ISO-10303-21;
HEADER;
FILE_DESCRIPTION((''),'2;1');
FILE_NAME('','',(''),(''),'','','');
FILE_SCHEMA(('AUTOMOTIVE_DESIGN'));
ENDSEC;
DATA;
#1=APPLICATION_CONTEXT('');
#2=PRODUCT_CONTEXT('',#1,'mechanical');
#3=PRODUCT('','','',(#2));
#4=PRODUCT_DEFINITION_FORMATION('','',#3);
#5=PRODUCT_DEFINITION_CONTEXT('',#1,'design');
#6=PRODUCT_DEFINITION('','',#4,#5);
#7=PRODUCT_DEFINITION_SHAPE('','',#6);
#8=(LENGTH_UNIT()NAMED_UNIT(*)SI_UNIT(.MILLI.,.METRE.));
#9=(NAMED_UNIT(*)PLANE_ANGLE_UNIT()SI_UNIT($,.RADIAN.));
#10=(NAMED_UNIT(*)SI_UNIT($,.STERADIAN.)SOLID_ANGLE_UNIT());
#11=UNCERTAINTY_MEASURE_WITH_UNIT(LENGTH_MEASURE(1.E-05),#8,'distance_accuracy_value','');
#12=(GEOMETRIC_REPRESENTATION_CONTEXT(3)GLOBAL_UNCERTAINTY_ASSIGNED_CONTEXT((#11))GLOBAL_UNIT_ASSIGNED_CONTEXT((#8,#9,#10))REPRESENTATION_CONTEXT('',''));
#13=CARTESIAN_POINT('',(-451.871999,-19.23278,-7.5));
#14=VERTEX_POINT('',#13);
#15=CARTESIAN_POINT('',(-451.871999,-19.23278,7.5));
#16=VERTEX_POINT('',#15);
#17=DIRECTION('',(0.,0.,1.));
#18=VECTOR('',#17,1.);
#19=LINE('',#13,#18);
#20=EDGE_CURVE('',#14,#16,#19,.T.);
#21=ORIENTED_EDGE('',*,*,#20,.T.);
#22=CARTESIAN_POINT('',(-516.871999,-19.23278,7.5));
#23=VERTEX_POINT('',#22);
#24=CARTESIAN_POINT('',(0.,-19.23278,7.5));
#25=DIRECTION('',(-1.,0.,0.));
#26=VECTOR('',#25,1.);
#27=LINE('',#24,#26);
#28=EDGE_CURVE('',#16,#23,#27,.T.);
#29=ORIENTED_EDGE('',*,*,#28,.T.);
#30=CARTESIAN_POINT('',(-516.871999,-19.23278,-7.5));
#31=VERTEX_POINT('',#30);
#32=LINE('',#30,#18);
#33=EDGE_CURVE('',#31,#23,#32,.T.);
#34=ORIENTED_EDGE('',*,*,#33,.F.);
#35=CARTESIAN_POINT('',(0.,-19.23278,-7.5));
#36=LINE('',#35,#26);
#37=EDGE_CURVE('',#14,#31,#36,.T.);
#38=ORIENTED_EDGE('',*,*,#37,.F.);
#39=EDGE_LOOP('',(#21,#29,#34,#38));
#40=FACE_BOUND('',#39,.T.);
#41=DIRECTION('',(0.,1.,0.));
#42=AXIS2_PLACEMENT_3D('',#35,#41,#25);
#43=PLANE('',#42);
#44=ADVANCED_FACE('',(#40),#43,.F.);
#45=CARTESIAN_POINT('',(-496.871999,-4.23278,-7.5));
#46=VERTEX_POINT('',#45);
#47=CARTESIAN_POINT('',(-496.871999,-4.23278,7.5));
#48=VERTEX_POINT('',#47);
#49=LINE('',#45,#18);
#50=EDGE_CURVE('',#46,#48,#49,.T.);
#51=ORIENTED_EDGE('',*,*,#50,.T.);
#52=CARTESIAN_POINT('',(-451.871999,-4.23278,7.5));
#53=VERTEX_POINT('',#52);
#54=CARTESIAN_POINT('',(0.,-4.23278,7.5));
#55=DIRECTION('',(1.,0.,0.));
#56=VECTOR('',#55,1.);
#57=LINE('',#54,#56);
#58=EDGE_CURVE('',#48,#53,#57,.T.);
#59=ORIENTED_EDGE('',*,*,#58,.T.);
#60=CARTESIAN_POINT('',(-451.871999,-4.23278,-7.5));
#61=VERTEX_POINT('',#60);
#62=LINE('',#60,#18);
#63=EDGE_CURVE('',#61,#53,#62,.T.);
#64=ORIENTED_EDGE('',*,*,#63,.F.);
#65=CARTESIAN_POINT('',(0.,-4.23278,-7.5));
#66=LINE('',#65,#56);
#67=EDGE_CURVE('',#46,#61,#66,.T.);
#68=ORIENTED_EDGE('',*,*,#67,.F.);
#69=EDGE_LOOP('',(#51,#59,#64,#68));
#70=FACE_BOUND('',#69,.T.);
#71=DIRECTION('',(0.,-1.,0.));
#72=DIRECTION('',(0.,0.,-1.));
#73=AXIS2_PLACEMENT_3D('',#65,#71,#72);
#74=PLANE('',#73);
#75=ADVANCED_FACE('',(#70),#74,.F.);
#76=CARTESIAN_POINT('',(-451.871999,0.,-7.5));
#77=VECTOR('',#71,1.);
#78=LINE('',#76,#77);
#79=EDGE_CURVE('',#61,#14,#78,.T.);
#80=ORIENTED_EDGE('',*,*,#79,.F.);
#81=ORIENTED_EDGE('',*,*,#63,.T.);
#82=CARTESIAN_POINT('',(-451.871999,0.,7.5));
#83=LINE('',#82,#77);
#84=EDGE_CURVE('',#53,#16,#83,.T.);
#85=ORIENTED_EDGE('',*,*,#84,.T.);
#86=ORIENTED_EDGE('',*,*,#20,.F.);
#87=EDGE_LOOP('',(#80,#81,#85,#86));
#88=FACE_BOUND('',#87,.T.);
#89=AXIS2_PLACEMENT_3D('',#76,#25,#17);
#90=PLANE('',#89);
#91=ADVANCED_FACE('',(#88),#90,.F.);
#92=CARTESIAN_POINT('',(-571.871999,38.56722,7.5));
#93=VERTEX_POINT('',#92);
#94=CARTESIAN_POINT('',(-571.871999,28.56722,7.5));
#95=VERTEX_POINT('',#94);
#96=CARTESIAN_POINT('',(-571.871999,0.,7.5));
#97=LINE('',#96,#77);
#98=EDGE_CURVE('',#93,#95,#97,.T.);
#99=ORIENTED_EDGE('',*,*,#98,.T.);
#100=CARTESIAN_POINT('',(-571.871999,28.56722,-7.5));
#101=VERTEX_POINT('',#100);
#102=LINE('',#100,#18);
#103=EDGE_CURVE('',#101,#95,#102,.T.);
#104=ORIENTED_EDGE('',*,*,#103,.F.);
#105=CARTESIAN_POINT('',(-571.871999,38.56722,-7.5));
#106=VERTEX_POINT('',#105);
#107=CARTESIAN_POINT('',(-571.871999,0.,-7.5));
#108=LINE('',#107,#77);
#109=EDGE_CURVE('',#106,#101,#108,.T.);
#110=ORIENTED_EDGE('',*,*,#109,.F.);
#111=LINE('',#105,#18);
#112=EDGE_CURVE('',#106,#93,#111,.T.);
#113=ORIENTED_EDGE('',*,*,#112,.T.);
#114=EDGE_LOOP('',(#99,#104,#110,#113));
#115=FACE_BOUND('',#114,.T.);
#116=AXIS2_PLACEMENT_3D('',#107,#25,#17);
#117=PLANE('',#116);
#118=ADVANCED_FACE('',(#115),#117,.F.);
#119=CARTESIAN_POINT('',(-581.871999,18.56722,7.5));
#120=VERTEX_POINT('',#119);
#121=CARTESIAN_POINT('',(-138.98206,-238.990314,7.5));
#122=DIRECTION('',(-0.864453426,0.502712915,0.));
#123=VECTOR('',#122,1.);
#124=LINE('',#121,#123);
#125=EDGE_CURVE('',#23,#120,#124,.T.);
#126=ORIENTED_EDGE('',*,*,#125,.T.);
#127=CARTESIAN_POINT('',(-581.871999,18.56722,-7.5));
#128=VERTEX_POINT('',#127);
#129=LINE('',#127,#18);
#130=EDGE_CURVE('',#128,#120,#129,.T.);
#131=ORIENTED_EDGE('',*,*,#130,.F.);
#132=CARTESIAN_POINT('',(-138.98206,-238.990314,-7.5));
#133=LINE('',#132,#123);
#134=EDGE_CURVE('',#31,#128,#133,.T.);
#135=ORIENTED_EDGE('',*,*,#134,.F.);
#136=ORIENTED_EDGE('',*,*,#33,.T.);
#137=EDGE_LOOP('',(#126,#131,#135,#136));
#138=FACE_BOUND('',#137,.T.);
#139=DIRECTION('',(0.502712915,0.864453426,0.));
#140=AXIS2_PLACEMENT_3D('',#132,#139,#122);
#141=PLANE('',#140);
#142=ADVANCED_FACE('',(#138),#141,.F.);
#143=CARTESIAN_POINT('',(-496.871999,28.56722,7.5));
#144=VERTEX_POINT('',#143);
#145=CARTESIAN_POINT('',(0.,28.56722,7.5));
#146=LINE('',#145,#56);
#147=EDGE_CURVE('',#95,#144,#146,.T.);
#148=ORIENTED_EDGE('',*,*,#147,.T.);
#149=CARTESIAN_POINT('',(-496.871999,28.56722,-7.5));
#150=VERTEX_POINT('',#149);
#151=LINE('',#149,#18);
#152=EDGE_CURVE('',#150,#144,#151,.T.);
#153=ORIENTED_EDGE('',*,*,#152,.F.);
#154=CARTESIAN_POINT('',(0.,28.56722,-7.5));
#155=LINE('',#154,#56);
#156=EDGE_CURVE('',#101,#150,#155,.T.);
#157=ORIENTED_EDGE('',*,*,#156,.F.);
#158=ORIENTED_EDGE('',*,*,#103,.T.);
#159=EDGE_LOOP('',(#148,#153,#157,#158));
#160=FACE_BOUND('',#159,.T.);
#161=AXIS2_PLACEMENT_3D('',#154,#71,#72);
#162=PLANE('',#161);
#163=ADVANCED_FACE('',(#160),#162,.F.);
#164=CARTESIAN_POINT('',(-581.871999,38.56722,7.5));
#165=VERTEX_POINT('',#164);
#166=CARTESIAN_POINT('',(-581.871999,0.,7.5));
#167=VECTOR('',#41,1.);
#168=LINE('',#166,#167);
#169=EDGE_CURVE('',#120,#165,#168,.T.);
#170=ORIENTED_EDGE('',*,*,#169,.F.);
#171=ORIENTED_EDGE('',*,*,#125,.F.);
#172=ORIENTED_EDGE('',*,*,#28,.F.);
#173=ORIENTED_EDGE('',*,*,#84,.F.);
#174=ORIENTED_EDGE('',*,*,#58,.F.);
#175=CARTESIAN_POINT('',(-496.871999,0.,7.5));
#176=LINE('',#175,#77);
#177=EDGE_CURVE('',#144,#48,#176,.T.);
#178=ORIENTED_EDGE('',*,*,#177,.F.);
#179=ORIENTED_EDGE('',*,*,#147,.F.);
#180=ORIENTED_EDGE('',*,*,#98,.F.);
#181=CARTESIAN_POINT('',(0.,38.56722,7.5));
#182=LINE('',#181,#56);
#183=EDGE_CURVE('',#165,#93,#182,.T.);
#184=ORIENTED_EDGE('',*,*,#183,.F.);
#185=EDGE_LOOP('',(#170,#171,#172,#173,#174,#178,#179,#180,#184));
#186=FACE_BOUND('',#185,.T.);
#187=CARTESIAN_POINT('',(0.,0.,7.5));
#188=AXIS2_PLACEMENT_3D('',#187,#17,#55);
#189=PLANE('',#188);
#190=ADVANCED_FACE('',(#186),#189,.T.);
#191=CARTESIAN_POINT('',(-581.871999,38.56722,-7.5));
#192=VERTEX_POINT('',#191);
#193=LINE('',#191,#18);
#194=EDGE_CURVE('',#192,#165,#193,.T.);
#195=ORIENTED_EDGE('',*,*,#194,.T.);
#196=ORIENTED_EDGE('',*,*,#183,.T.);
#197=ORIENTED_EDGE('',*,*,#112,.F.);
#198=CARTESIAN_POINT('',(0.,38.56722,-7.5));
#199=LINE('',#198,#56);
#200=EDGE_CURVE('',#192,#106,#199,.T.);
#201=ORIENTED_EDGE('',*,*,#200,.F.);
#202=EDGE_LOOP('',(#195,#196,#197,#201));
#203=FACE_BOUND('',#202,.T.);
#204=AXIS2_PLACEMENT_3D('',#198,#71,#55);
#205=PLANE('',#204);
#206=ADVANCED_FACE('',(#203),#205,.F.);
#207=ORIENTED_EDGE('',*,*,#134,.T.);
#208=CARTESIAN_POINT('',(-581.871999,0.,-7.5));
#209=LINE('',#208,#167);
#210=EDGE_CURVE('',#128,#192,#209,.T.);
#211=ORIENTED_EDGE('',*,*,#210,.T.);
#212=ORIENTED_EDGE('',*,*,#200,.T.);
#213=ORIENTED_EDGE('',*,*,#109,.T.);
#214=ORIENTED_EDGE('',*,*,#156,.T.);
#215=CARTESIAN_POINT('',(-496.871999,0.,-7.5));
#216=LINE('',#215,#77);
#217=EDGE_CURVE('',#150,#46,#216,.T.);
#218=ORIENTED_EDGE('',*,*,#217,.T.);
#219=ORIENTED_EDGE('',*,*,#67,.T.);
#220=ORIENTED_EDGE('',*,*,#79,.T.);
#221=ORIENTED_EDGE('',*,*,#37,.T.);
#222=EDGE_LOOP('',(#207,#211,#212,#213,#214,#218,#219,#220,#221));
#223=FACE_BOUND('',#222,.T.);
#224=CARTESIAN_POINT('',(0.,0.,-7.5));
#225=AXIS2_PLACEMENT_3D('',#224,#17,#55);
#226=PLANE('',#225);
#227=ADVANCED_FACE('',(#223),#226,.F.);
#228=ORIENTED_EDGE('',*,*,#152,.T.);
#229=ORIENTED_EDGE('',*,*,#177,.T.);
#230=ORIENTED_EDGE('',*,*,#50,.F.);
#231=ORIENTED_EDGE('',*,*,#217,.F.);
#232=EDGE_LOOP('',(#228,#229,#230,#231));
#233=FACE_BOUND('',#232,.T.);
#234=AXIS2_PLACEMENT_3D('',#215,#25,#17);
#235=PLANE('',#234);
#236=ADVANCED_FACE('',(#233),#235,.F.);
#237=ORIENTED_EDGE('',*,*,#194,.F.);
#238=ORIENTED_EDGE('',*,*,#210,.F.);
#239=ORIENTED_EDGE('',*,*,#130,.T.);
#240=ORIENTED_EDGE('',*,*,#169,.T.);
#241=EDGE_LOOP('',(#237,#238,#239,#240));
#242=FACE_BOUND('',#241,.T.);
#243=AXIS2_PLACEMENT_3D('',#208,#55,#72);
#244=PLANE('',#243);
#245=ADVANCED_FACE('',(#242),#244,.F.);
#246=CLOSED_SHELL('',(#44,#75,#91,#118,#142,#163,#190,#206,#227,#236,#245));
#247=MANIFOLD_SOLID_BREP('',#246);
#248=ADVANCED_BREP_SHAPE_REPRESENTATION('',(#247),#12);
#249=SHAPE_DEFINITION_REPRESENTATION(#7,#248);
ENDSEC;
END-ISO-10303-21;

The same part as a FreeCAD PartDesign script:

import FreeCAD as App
import Part
import Sketcher

V = App.Vector
Q = App.Units.Quantity

doc = App.newDocument("Part")
body = doc.addObject("PartDesign::Body", "Body")

# Sketch on XY plane
sketch1 = body.newObject("Sketcher::SketchObject", "Sketch")
sketch1.AttachmentSupport = (doc.getObject("XY_Plane"), [""])
sketch1.MapMode = "FlatFace"
sketch1.addGeometry(Part.LineSegment(V(-452, -19, 0), V(-452, -4, 0)), False)
sketch1.addGeometry(Part.LineSegment(V(-452, -4, 0), V(-497, -4, 0)), False)
sketch1.addGeometry(Part.LineSegment(V(-497, -4, 0), V(-497, 29, 0)), False)
sketch1.addGeometry(Part.LineSegment(V(-497, 29, 0), V(-572, 29, 0)), False)
sketch1.addGeometry(Part.LineSegment(V(-572, 29, 0), V(-572, 39, 0)), False)
sketch1.addGeometry(Part.LineSegment(V(-572, 39, 0), V(-582, 39, 0)), False)
sketch1.addGeometry(Part.LineSegment(V(-582, 39, 0), V(-582, 19, 0)), False)
sketch1.addGeometry(Part.LineSegment(V(-582, 19, 0), V(-517, -19, 0)), False)
sketch1.addGeometry(Part.LineSegment(V(-517, -19, 0), V(-452, -19, 0)), False)
sketch1.addConstraint(Sketcher.Constraint("Coincident", 0, 2, 1, 1))
sketch1.addConstraint(Sketcher.Constraint("Coincident", 1, 2, 2, 1))
sketch1.addConstraint(Sketcher.Constraint("Coincident", 2, 2, 3, 1))
sketch1.addConstraint(Sketcher.Constraint("Coincident", 3, 2, 4, 1))
sketch1.addConstraint(Sketcher.Constraint("Coincident", 4, 2, 5, 1))
sketch1.addConstraint(Sketcher.Constraint("Coincident", 5, 2, 6, 1))
sketch1.addConstraint(Sketcher.Constraint("Coincident", 6, 2, 7, 1))
sketch1.addConstraint(Sketcher.Constraint("Coincident", 7, 2, 8, 1))
sketch1.addConstraint(Sketcher.Constraint("Coincident", 8, 2, 0, 1))
sketch1.addConstraint(Sketcher.Constraint("Vertical", 0))
sketch1.addConstraint(Sketcher.Constraint("Horizontal", 1))
sketch1.addConstraint(Sketcher.Constraint("Vertical", 2))
sketch1.addConstraint(Sketcher.Constraint("Horizontal", 3))
sketch1.addConstraint(Sketcher.Constraint("Vertical", 4))
sketch1.addConstraint(Sketcher.Constraint("Horizontal", 5))
sketch1.addConstraint(Sketcher.Constraint("Vertical", 6))
sketch1.addConstraint(Sketcher.Constraint("Horizontal", 8))
sketch1.addConstraint(Sketcher.Constraint("Equal", 5, 4))
sketch1.addConstraint(Sketcher.Constraint("DistanceX", 1, 2, 1, 1, Q("45 mm")))
sketch1.addConstraint(Sketcher.Constraint("DistanceX", 3, 2, 3, 1, Q("75 mm")))
sketch1.addConstraint(Sketcher.Constraint("DistanceX", 5, 2, 5, 1, Q("10 mm")))
sketch1.addConstraint(Sketcher.Constraint("DistanceX", 8, 1, 8, 2, Q("65 mm")))
sketch1.addConstraint(Sketcher.Constraint("DistanceY", 0, 1, 0, 2, Q("15 mm")))
sketch1.addConstraint(Sketcher.Constraint("DistanceY", 6, 2, 6, 1, Q("20 mm")))
sketch1.addConstraint(Sketcher.Constraint("DistanceY", 2, 1, 2, 2, Q("32.8 mm")))
sketch1.addConstraint(Sketcher.Constraint("DistanceX", 0, 2, -1, 1, Q("451.871999 mm")))
sketch1.addConstraint(Sketcher.Constraint("DistanceY", 0, 2, -1, 1, Q("4.23278 mm")))
pad1 = body.newObject("PartDesign::Pad", "Pad")
pad1.Profile = sketch1
pad1.Type = "TwoLengths"
pad1.Length = 7.5
pad1.Length2 = 7.5

doc.recompute()
